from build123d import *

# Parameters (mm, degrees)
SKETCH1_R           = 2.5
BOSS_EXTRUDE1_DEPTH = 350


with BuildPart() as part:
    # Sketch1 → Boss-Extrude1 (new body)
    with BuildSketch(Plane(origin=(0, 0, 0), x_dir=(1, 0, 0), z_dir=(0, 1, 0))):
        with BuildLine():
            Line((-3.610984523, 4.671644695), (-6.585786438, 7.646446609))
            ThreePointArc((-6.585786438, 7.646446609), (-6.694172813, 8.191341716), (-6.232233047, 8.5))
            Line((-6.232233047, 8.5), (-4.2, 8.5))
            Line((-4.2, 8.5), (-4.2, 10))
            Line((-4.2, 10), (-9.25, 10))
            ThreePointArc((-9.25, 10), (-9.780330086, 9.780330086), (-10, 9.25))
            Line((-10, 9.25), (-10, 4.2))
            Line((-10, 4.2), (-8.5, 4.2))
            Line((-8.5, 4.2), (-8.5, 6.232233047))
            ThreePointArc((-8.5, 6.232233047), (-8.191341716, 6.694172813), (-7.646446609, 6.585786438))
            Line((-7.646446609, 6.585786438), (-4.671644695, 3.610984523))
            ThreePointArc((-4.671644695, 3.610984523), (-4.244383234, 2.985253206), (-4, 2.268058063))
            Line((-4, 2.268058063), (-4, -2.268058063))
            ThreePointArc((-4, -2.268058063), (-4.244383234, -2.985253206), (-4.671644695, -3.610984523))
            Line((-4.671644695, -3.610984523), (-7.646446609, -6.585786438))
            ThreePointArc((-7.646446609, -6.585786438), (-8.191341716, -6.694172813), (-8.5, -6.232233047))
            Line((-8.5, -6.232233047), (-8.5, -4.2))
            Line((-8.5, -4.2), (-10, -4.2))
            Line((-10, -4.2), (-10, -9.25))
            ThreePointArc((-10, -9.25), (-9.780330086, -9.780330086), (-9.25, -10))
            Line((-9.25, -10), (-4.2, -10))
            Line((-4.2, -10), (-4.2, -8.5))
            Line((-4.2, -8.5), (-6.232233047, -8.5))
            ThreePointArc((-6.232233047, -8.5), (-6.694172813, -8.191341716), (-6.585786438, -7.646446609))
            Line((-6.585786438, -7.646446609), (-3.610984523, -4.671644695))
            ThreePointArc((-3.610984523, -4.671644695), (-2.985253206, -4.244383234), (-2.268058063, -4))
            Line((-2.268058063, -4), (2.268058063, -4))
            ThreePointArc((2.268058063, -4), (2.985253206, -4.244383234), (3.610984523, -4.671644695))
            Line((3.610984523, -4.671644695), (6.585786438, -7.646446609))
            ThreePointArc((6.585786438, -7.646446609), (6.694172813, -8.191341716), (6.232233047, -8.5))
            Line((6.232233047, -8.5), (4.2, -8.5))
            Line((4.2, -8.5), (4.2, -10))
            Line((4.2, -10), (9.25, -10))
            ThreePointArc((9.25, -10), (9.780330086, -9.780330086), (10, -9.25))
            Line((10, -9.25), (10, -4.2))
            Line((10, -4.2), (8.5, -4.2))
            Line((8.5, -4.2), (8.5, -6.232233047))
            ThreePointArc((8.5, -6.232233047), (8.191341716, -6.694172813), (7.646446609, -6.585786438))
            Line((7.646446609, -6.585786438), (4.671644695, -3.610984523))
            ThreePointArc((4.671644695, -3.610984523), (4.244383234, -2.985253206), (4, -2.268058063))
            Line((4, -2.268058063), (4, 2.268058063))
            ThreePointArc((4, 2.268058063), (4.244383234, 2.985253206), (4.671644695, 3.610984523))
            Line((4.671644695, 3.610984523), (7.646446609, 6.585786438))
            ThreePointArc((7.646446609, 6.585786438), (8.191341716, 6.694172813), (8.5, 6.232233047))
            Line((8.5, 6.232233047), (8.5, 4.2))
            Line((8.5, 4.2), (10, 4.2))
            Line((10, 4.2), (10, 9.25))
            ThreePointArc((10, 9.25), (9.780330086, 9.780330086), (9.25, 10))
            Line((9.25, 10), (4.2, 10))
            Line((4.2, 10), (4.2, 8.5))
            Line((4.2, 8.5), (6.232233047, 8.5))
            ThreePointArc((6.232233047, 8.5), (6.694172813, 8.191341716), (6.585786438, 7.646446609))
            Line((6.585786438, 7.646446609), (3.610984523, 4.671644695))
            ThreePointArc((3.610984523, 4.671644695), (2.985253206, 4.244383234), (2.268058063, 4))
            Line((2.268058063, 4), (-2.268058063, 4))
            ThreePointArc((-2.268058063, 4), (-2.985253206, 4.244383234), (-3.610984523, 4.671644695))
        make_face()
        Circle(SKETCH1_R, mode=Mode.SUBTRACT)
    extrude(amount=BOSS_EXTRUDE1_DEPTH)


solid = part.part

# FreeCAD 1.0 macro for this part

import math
import FreeCAD as App
import Part
import Sketcher
from FreeCAD import Vector

doc = App.newDocument("Part")
body = doc.addObject("PartDesign::Body", "Body")

sketch1 = body.newObject("Sketcher::SketchObject", "Sketch")
sketch1.AttachmentSupport = (doc.getObject("XZ_Plane"), [""])
sketch1.MapMode = "FlatFace"
sketch1.addGeometry(Part.LineSegment(Vector(-3.6, -4.7, 0), Vector(-6.6, -7.6, 0)), False)
sketch1.addGeometry(Part.ArcOfCircle(Part.Circle(Vector(-6.2, -8, 0), Vector(0, 0, 1), 0.5), math.radians(135), math.radians(270)), False)
sketch1.addGeometry(Part.LineSegment(Vector(-6.2, -8.5, 0), Vector(-4.2, -8.5, 0)), False)
sketch1.addGeometry(Part.LineSegment(Vector(-4.2, -8.5, 0), Vector(-4.2, -10, 0)), False)
sketch1.addGeometry(Part.LineSegment(Vector(-4.2, -10, 0), Vector(-9.2, -10, 0)), False)
sketch1.addGeometry(Part.ArcOfCircle(Part.Circle(Vector(-9.2, -9.2, 0), Vector(0, 0, 1), 0.8), math.radians(180), math.radians(270)), False)
sketch1.addGeometry(Part.LineSegment(Vector(-10, -9.2, 0), Vector(-10, -4.2, 0)), False)
sketch1.addGeometry(Part.LineSegment(Vector(-10, -4.2, 0), Vector(-8.5, -4.2, 0)), False)
sketch1.addGeometry(Part.LineSegment(Vector(-8.5, -4.2, 0), Vector(-8.5, -6.2, 0)), False)
sketch1.addGeometry(Part.ArcOfCircle(Part.Circle(Vector(-8, -6.2, 0), Vector(0, 0, 1), 0.5), math.radians(-180), math.radians(-45)), False)
sketch1.addGeometry(Part.LineSegment(Vector(-7.6, -6.6, 0), Vector(-4.7, -3.6, 0)), False)
sketch1.addGeometry(Part.ArcOfCircle(Part.Circle(Vector(-6.8, -1.7, 0), Vector(0, 0, 1), 2.8), math.radians(-42), math.radians(-11)), False)
sketch1.addGeometry(Part.LineSegment(Vector(-4, -2.3, 0), Vector(-4, 2.3, 0)), False)
sketch1.addGeometry(Part.ArcOfCircle(Part.Circle(Vector(-6.8, 1.7, 0), Vector(0, 0, 1), 2.8), math.radians(11), math.radians(42)), False)
sketch1.addGeometry(Part.LineSegment(Vector(-4.7, 3.6, 0), Vector(-7.6, 6.6, 0)), False)
sketch1.addGeometry(Part.ArcOfCircle(Part.Circle(Vector(-8, 6.2, 0), Vector(0, 0, 1), 0.5), math.radians(45), math.radians(180)), False)
sketch1.addGeometry(Part.LineSegment(Vector(-8.5, 6.2, 0), Vector(-8.5, 4.2, 0)), False)
sketch1.addGeometry(Part.LineSegment(Vector(-8.5, 4.2, 0), Vector(-10, 4.2, 0)), False)
sketch1.addGeometry(Part.LineSegment(Vector(-10, 4.2, 0), Vector(-10, 9.2, 0)), False)
sketch1.addGeometry(Part.ArcOfCircle(Part.Circle(Vector(-9.2, 9.2, 0), Vector(0, 0, 1), 0.8), math.radians(90), math.radians(180)), False)
sketch1.addGeometry(Part.LineSegment(Vector(-9.2, 10, 0), Vector(-4.2, 10, 0)), False)
sketch1.addGeometry(Part.LineSegment(Vector(-4.2, 10, 0), Vector(-4.2, 8.5, 0)), False)
sketch1.addGeometry(Part.LineSegment(Vector(-4.2, 8.5, 0), Vector(-6.2, 8.5, 0)), False)
sketch1.addGeometry(Part.ArcOfCircle(Part.Circle(Vector(-6.2, 8, 0), Vector(0, 0, 1), 0.5), math.radians(90), math.radians(225)), False)
sketch1.addGeometry(Part.LineSegment(Vector(-6.6, 7.6, 0), Vector(-3.6, 4.7, 0)), False)
sketch1.addGeometry(Part.ArcOfCircle(Part.Circle(Vector(-1.7, 6.8, 0), Vector(0, 0, 1), 2.8), math.radians(-132), math.radians(-101)), False)
sketch1.addGeometry(Part.LineSegment(Vector(-2.3, 4, 0), Vector(2.3, 4, 0)), False)
sketch1.addGeometry(Part.ArcOfCircle(Part.Circle(Vector(1.7, 6.8, 0), Vector(0, 0, 1), 2.8), math.radians(-79), math.radians(-48)), False)
sketch1.addGeometry(Part.LineSegment(Vector(3.6, 4.7, 0), Vector(6.6, 7.6, 0)), False)
sketch1.addGeometry(Part.ArcOfCircle(Part.Circle(Vector(6.2, 8, 0), Vector(0, 0, 1), 0.5), math.radians(-45), math.radians(90)), False)
sketch1.addGeometry(Part.LineSegment(Vector(6.2, 8.5, 0), Vector(4.2, 8.5, 0)), False)
sketch1.addGeometry(Part.LineSegment(Vector(4.2, 8.5, 0), Vector(4.2, 10, 0)), False)
sketch1.addGeometry(Part.LineSegment(Vector(4.2, 10, 0), Vector(9.2, 10, 0)), False)
sketch1.addGeometry(Part.ArcOfCircle(Part.Circle(Vector(9.2, 9.2, 0), Vector(0, 0, 1), 0.8), math.radians(0), math.radians(90)), False)
sketch1.addGeometry(Part.LineSegment(Vector(10, 9.2, 0), Vector(10, 4.2, 0)), False)
sketch1.addGeometry(Part.LineSegment(Vector(10, 4.2, 0), Vector(8.5, 4.2, 0)), False)
sketch1.addGeometry(Part.LineSegment(Vector(8.5, 4.2, 0), Vector(8.5, 6.2, 0)), False)
sketch1.addGeometry(Part.ArcOfCircle(Part.Circle(Vector(8, 6.2, 0), Vector(0, 0, 1), 0.5), math.radians(0), math.radians(135)), False)
sketch1.addGeometry(Part.LineSegment(Vector(7.6, 6.6, 0), Vector(4.7, 3.6, 0)), False)
sketch1.addGeometry(Part.ArcOfCircle(Part.Circle(Vector(6.8, 1.7, 0), Vector(0, 0, 1), 2.8), math.radians(138), math.radians(169)), False)
sketch1.addGeometry(Part.LineSegment(Vector(4, 2.3, 0), Vector(4, -2.3, 0)), False)
sketch1.addGeometry(Part.ArcOfCircle(Part.Circle(Vector(6.8, -1.7, 0), Vector(0, 0, 1), 2.8), math.radians(-169), math.radians(-138)), False)
sketch1.addGeometry(Part.LineSegment(Vector(4.7, -3.6, 0), Vector(7.6, -6.6, 0)), False)
sketch1.addGeometry(Part.ArcOfCircle(Part.Circle(Vector(8, -6.2, 0), Vector(0, 0, 1), 0.5), math.radians(-135), math.radians(0)), False)
sketch1.addGeometry(Part.LineSegment(Vector(8.5, -6.2, 0), Vector(8.5, -4.2, 0)), False)
sketch1.addGeometry(Part.LineSegment(Vector(8.5, -4.2, 0), Vector(10, -4.2, 0)), False)
sketch1.addGeometry(Part.LineSegment(Vector(10, -4.2, 0), Vector(10, -9.2, 0)), False)
sketch1.addGeometry(Part.ArcOfCircle(Part.Circle(Vector(9.2, -9.2, 0), Vector(0, 0, 1), 0.8), math.radians(-90), math.radians(0)), False)
sketch1.addGeometry(Part.LineSegment(Vector(9.2, -10, 0), Vector(4.2, -10, 0)), False)
sketch1.addGeometry(Part.LineSegment(Vector(4.2, -10, 0), Vector(4.2, -8.5, 0)), False)
sketch1.addGeometry(Part.LineSegment(Vector(4.2, -8.5, 0), Vector(6.2, -8.5, 0)), False)
sketch1.addGeometry(Part.ArcOfCircle(Part.Circle(Vector(6.2, -8, 0), Vector(0, 0, 1), 0.5), math.radians(-90), math.radians(45)), False)
sketch1.addGeometry(Part.LineSegment(Vector(6.6, -7.6, 0), Vector(3.6, -4.7, 0)), False)
sketch1.addGeometry(Part.ArcOfCircle(Part.Circle(Vector(1.7, -6.8, 0), Vector(0, 0, 1), 2.8), math.radians(48), math.radians(79)), False)
sketch1.addGeometry(Part.LineSegment(Vector(2.3, -4, 0), Vector(-2.3, -4, 0)), False)
sketch1.addGeometry(Part.ArcOfCircle(Part.Circle(Vector(-1.7, -6.8, 0), Vector(0, 0, 1), 2.8), math.radians(101), math.radians(132)), False)
sketch1.addGeometry(Part.Circle(Vector(0, 0, 0), Vector(0, 0, 1), 2.5), False)
sketch1.addConstraint(Sketcher.Constraint("Tangent", 0, 2, 1, 1))
sketch1.addConstraint(Sketcher.Constraint("Tangent", 1, 2, 2, 1))
sketch1.addConstraint(Sketcher.Constraint("Coincident", 2, 2, 3, 1))
sketch1.addConstraint(Sketcher.Constraint("Coincident", 3, 2, 4, 1))
sketch1.addConstraint(Sketcher.Constraint("Tangent", 4, 2, 5, 2))
sketch1.addConstraint(Sketcher.Constraint("Tangent", 5, 1, 6, 1))
sketch1.addConstraint(Sketcher.Constraint("Coincident", 6, 2, 7, 1))
sketch1.addConstraint(Sketcher.Constraint("Coincident", 7, 2, 8, 1))
sketch1.addConstraint(Sketcher.Constraint("Tangent", 8, 2, 9, 1))
sketch1.addConstraint(Sketcher.Constraint("Tangent", 9, 2, 10, 1))
sketch1.addConstraint(Sketcher.Constraint("Coincident", 10, 2, 11, 1))
sketch1.addConstraint(Sketcher.Constraint("Coincident", 11, 2, 12, 1))
sketch1.addConstraint(Sketcher.Constraint("Coincident", 12, 2, 13, 1))
sketch1.addConstraint(Sketcher.Constraint("Coincident", 13, 2, 14, 1))
sketch1.addConstraint(Sketcher.Constraint("Tangent", 14, 2, 15, 1))
sketch1.addConstraint(Sketcher.Constraint("Tangent", 15, 2, 16, 1))
sketch1.addConstraint(Sketcher.Constraint("Coincident", 16, 2, 17, 1))
sketch1.addConstraint(Sketcher.Constraint("Coincident", 17, 2, 18, 1))
sketch1.addConstraint(Sketcher.Constraint("Tangent", 18, 2, 19, 2))
sketch1.addConstraint(Sketcher.Constraint("Tangent", 19, 1, 20, 1))
sketch1.addConstraint(Sketcher.Constraint("Coincident", 20, 2, 21, 1))
sketch1.addConstraint(Sketcher.Constraint("Coincident", 21, 2, 22, 1))
sketch1.addConstraint(Sketcher.Constraint("Tangent", 22, 2, 23, 1))
sketch1.addConstraint(Sketcher.Constraint("Tangent", 23, 2, 24, 1))
sketch1.addConstraint(Sketcher.Constraint("Coincident", 24, 2, 25, 1))
sketch1.addConstraint(Sketcher.Constraint("Coincident", 25, 2, 26, 1))
sketch1.addConstraint(Sketcher.Constraint("Coincident", 26, 2, 27, 1))
sketch1.addConstraint(Sketcher.Constraint("Coincident", 27, 2, 28, 1))
sketch1.addConstraint(Sketcher.Constraint("Tangent", 28, 2, 29, 1))
sketch1.addConstraint(Sketcher.Constraint("Tangent", 29, 2, 30, 1))
sketch1.addConstraint(Sketcher.Constraint("Coincident", 30, 2, 31, 1))
sketch1.addConstraint(Sketcher.Constraint("Coincident", 31, 2, 32, 1))
sketch1.addConstraint(Sketcher.Constraint("Tangent", 32, 2, 33, 2))
sketch1.addConstraint(Sketcher.Constraint("Tangent", 33, 1, 34, 1))
sketch1.addConstraint(Sketcher.Constraint("Coincident", 34, 2, 35, 1))
sketch1.addConstraint(Sketcher.Constraint("Coincident", 35, 2, 36, 1))
sketch1.addConstraint(Sketcher.Constraint("Tangent", 36, 2, 37, 1))
sketch1.addConstraint(Sketcher.Constraint("Tangent", 37, 2, 38, 1))
sketch1.addConstraint(Sketcher.Constraint("Coincident", 38, 2, 39, 1))
sketch1.addConstraint(Sketcher.Constraint("Coincident", 39, 2, 40, 1))
sketch1.addConstraint(Sketcher.Constraint("Coincident", 40, 2, 41, 1))
sketch1.addConstraint(Sketcher.Constraint("Coincident", 41, 2, 42, 1))
sketch1.addConstraint(Sketcher.Constraint("Tangent", 42, 2, 43, 1))
sketch1.addConstraint(Sketcher.Constraint("Tangent", 43, 2, 44, 1))
sketch1.addConstraint(Sketcher.Constraint("Coincident", 44, 2, 45, 1))
sketch1.addConstraint(Sketcher.Constraint("Coincident", 45, 2, 46, 1))
sketch1.addConstraint(Sketcher.Constraint("Tangent", 46, 2, 47, 2))
sketch1.addConstraint(Sketcher.Constraint("Tangent", 47, 1, 48, 1))
sketch1.addConstraint(Sketcher.Constraint("Coincident", 48, 2, 49, 1))
sketch1.addConstraint(Sketcher.Constraint("Coincident", 49, 2, 50, 1))
sketch1.addConstraint(Sketcher.Constraint("Tangent", 50, 2, 51, 1))
sketch1.addConstraint(Sketcher.Constraint("Tangent", 51, 2, 52, 1))
sketch1.addConstraint(Sketcher.Constraint("Coincident", 52, 2, 53, 1))
sketch1.addConstraint(Sketcher.Constraint("Coincident", 53, 2, 54, 1))
sketch1.addConstraint(Sketcher.Constraint("Coincident", 54, 2, 55, 1))
sketch1.addConstraint(Sketcher.Constraint("Coincident", 55, 2, 0, 1))
sketch1.addConstraint(Sketcher.Constraint("Horizontal", 2))
sketch1.addConstraint(Sketcher.Constraint("Vertical", 3))
sketch1.addConstraint(Sketcher.Constraint("Horizontal", 4))
sketch1.addConstraint(Sketcher.Constraint("Vertical", 6))
sketch1.addConstraint(Sketcher.Constraint("Horizontal", 7))
sketch1.addConstraint(Sketcher.Constraint("Vertical", 8))
sketch1.addConstraint(Sketcher.Constraint("Vertical", 12))
sketch1.addConstraint(Sketcher.Constraint("Vertical", 16))
sketch1.addConstraint(Sketcher.Constraint("Horizontal", 17))
sketch1.addConstraint(Sketcher.Constraint("Vertical", 18))
sketch1.addConstraint(Sketcher.Constraint("Horizontal", 20))
sketch1.addConstraint(Sketcher.Constraint("Vertical", 21))
sketch1.addConstraint(Sketcher.Constraint("Horizontal", 22))
sketch1.addConstraint(Sketcher.Constraint("Horizontal", 26))
sketch1.addConstraint(Sketcher.Constraint("Horizontal", 30))
sketch1.addConstraint(Sketcher.Constraint("Vertical", 31))
sketch1.addConstraint(Sketcher.Constraint("Horizontal", 32))
sketch1.addConstraint(Sketcher.Constraint("Vertical", 34))
sketch1.addConstraint(Sketcher.Constraint("Horizontal", 35))
sketch1.addConstraint(Sketcher.Constraint("Vertical", 36))
sketch1.addConstraint(Sketcher.Constraint("Vertical", 40))
sketch1.addConstraint(Sketcher.Constraint("Vertical", 44))
sketch1.addConstraint(Sketcher.Constraint("Horizontal", 45))
sketch1.addConstraint(Sketcher.Constraint("Vertical", 46))
sketch1.addConstraint(Sketcher.Constraint("Horizontal", 48))
sketch1.addConstraint(Sketcher.Constraint("Vertical", 49))
sketch1.addConstraint(Sketcher.Constraint("Horizontal", 50))
sketch1.addConstraint(Sketcher.Constraint("Horizontal", 54))
sketch1.addConstraint(Sketcher.Constraint("Coincident", 56, 3, -1, 1))
sketch1.addConstraint(Sketcher.Constraint("Equal", 1, 9))
sketch1.addConstraint(Sketcher.Constraint("Equal", 11, 13))
sketch1.addConstraint(Sketcher.Constraint("Equal", 9, 15))
sketch1.addConstraint(Sketcher.Constraint("Equal", 5, 19))
sketch1.addConstraint(Sketcher.Constraint("Equal", 15, 23))
sketch1.addConstraint(Sketcher.Constraint("Equal", 13, 25))
sketch1.addConstraint(Sketcher.Constraint("Equal", 25, 27))
sketch1.addConstraint(Sketcher.Constraint("Equal", 23, 29))
sketch1.addConstraint(Sketcher.Constraint("Equal", 19, 33))
sketch1.addConstraint(Sketcher.Constraint("Equal", 29, 37))
sketch1.addConstraint(Sketcher.Constraint("Equal", 27, 39))
sketch1.addConstraint(Sketcher.Constraint("Equal", 39, 41))
sketch1.addConstraint(Sketcher.Constraint("Equal", 37, 43))
sketch1.addConstraint(Sketcher.Constraint("Equal", 33, 47))
sketch1.addConstraint(Sketcher.Constraint("Equal", 43, 51))
sketch1.addConstraint(Sketcher.Constraint("Equal", 41, 53))
sketch1.addConstraint(Sketcher.Constraint("Equal", 53, 55))
sketch1.addConstraint(Sketcher.Constraint("Symmetric", 1, 3, 29, 3, -1, 1))
sketch1.addConstraint(Sketcher.Constraint("Symmetric", 5, 3, 33, 3, -1, 1))
sketch1.addConstraint(Sketcher.Constraint("Symmetric", 9, 3, 37, 3, -1, 1))
sketch1.addConstraint(Sketcher.Constraint("Symmetric", 11, 3, 39, 3, -1, 1))
sketch1.addConstraint(Sketcher.Constraint("Symmetric", 13, 3, 41, 3, -1, 1))
sketch1.addConstraint(Sketcher.Constraint("Symmetric", 15, 3, 43, 3, -1, 1))
sketch1.addConstraint(Sketcher.Constraint("Symmetric", 19, 3, 47, 3, -1, 1))
sketch1.addConstraint(Sketcher.Constraint("Symmetric", 23, 3, 51, 3, -1, 1))
sketch1.addConstraint(Sketcher.Constraint("Symmetric", 25, 3, 53, 3, -1, 1))
sketch1.addConstraint(Sketcher.Constraint("Symmetric", 27, 3, 55, 3, -1, 1))
sketch1.addConstraint(Sketcher.Constraint("Symmetric", 25, 3, 27, 3, -2))
sketch1.addConstraint(Sketcher.Constraint("Symmetric", 23, 3, 29, 3, -2))
sketch1.addConstraint(Sketcher.Constraint("Symmetric", 19, 3, 33, 3, -2))
sketch1.addConstraint(Sketcher.Constraint("Symmetric", 15, 3, 37, 3, -2))
sketch1.addConstraint(Sketcher.Constraint("Symmetric", 13, 3, 39, 3, -2))
sketch1.addConstraint(Sketcher.Constraint("Parallel", 0, 10))
sketch1.addConstraint(Sketcher.Constraint("Perpendicular", 10, 14))
sketch1.addConstraint(Sketcher.Constraint("Parallel", 14, 24))
sketch1.addConstraint(Sketcher.Constraint("Perpendicular", 24, 28))
sketch1.addConstraint(Sketcher.Constraint("Parallel", 28, 38))
sketch1.addConstraint(Sketcher.Constraint("Perpendicular", 38, 42))
sketch1.addConstraint(Sketcher.Constraint("Parallel", 42, 52))
sketch1.addConstraint(Sketcher.Constraint("Horizontal", 24, 2, 27, 2))
sketch1.addConstraint(Sketcher.Constraint("Horizontal", 17, 2, 34, 2))
sketch1.addConstraint(Sketcher.Constraint("Horizontal", 12, 2, 39, 2))
sketch1.addConstraint(Sketcher.Constraint("Horizontal", 7, 2, 44, 2))
sketch1.addConstraint(Sketcher.Constraint("Vertical", 3, 2, 20, 2))
sketch1.addConstraint(Sketcher.Constraint("Vertical", 31, 2, 48, 2))
sketch1.addConstraint(Sketcher.Constraint("Vertical", 26, 2, 53, 2))
sketch1.addConstraint(Sketcher.Constraint("Equal", 22, 30))
sketch1.addConstraint(Sketcher.Constraint("Equal", 45, 3))
sketch1.addConstraint(Sketcher.Constraint("Equal", 48, 6))
sketch1.addConstraint(Sketcher.Constraint("Equal", 50, 8))
sketch1.addConstraint(Sketcher.Constraint("Equal", 54, 12))
sketch1.addConstraint(Sketcher.Constraint("Equal", 8, 16))
sketch1.addConstraint(Sketcher.Constraint("Equal", 0, 10))
sketch1.addConstraint(Sketcher.Constraint("Diameter", 56, 5.0))
sketch1.addConstraint(Sketcher.Constraint("Radius", 1, 0.5))
sketch1.addConstraint(Sketcher.Constraint("Radius", 5, 0.75))
sketch1.addConstraint(Sketcher.Constraint("DistanceX", 7, 1, 7, 2, 1.5))
sketch1.addConstraint(Sketcher.Constraint("DistanceY", 1, 3, -1, 1, 8.0))
sketch1.addConstraint(Sketcher.Constraint("DistanceX", 9, 3, -1, 1, 8.0))
sketch1.addConstraint(Sketcher.Constraint("DistanceX", 11, 2, -1, 1, 4.0))
sketch1.addConstraint(Sketcher.Constraint("DistanceY", -1, 1, 25, 2, 4.0))
sketch1.addConstraint(Sketcher.Constraint("DistanceX", 4, 2, 4, 1, 5.05))
sketch1.addConstraint(Sketcher.Constraint("Radius", 11, 2.807638))
sketch1.addConstraint(Sketcher.Constraint("DistanceX", 2, 1, 2, 2, 2.032233))
sketch1.addConstraint(Sketcher.Constraint("DistanceX", 26, 1, 26, 2, 4.536116))
sketch1.addConstraint(Sketcher.Constraint("DistanceY", 11, 3, -1, 1, 1.729368))
pad1 = body.newObject("PartDesign::Pad", "Pad")
pad1.Profile = sketch1
pad1.Length = 350
pad1.Reversed = True

doc.recompute()
